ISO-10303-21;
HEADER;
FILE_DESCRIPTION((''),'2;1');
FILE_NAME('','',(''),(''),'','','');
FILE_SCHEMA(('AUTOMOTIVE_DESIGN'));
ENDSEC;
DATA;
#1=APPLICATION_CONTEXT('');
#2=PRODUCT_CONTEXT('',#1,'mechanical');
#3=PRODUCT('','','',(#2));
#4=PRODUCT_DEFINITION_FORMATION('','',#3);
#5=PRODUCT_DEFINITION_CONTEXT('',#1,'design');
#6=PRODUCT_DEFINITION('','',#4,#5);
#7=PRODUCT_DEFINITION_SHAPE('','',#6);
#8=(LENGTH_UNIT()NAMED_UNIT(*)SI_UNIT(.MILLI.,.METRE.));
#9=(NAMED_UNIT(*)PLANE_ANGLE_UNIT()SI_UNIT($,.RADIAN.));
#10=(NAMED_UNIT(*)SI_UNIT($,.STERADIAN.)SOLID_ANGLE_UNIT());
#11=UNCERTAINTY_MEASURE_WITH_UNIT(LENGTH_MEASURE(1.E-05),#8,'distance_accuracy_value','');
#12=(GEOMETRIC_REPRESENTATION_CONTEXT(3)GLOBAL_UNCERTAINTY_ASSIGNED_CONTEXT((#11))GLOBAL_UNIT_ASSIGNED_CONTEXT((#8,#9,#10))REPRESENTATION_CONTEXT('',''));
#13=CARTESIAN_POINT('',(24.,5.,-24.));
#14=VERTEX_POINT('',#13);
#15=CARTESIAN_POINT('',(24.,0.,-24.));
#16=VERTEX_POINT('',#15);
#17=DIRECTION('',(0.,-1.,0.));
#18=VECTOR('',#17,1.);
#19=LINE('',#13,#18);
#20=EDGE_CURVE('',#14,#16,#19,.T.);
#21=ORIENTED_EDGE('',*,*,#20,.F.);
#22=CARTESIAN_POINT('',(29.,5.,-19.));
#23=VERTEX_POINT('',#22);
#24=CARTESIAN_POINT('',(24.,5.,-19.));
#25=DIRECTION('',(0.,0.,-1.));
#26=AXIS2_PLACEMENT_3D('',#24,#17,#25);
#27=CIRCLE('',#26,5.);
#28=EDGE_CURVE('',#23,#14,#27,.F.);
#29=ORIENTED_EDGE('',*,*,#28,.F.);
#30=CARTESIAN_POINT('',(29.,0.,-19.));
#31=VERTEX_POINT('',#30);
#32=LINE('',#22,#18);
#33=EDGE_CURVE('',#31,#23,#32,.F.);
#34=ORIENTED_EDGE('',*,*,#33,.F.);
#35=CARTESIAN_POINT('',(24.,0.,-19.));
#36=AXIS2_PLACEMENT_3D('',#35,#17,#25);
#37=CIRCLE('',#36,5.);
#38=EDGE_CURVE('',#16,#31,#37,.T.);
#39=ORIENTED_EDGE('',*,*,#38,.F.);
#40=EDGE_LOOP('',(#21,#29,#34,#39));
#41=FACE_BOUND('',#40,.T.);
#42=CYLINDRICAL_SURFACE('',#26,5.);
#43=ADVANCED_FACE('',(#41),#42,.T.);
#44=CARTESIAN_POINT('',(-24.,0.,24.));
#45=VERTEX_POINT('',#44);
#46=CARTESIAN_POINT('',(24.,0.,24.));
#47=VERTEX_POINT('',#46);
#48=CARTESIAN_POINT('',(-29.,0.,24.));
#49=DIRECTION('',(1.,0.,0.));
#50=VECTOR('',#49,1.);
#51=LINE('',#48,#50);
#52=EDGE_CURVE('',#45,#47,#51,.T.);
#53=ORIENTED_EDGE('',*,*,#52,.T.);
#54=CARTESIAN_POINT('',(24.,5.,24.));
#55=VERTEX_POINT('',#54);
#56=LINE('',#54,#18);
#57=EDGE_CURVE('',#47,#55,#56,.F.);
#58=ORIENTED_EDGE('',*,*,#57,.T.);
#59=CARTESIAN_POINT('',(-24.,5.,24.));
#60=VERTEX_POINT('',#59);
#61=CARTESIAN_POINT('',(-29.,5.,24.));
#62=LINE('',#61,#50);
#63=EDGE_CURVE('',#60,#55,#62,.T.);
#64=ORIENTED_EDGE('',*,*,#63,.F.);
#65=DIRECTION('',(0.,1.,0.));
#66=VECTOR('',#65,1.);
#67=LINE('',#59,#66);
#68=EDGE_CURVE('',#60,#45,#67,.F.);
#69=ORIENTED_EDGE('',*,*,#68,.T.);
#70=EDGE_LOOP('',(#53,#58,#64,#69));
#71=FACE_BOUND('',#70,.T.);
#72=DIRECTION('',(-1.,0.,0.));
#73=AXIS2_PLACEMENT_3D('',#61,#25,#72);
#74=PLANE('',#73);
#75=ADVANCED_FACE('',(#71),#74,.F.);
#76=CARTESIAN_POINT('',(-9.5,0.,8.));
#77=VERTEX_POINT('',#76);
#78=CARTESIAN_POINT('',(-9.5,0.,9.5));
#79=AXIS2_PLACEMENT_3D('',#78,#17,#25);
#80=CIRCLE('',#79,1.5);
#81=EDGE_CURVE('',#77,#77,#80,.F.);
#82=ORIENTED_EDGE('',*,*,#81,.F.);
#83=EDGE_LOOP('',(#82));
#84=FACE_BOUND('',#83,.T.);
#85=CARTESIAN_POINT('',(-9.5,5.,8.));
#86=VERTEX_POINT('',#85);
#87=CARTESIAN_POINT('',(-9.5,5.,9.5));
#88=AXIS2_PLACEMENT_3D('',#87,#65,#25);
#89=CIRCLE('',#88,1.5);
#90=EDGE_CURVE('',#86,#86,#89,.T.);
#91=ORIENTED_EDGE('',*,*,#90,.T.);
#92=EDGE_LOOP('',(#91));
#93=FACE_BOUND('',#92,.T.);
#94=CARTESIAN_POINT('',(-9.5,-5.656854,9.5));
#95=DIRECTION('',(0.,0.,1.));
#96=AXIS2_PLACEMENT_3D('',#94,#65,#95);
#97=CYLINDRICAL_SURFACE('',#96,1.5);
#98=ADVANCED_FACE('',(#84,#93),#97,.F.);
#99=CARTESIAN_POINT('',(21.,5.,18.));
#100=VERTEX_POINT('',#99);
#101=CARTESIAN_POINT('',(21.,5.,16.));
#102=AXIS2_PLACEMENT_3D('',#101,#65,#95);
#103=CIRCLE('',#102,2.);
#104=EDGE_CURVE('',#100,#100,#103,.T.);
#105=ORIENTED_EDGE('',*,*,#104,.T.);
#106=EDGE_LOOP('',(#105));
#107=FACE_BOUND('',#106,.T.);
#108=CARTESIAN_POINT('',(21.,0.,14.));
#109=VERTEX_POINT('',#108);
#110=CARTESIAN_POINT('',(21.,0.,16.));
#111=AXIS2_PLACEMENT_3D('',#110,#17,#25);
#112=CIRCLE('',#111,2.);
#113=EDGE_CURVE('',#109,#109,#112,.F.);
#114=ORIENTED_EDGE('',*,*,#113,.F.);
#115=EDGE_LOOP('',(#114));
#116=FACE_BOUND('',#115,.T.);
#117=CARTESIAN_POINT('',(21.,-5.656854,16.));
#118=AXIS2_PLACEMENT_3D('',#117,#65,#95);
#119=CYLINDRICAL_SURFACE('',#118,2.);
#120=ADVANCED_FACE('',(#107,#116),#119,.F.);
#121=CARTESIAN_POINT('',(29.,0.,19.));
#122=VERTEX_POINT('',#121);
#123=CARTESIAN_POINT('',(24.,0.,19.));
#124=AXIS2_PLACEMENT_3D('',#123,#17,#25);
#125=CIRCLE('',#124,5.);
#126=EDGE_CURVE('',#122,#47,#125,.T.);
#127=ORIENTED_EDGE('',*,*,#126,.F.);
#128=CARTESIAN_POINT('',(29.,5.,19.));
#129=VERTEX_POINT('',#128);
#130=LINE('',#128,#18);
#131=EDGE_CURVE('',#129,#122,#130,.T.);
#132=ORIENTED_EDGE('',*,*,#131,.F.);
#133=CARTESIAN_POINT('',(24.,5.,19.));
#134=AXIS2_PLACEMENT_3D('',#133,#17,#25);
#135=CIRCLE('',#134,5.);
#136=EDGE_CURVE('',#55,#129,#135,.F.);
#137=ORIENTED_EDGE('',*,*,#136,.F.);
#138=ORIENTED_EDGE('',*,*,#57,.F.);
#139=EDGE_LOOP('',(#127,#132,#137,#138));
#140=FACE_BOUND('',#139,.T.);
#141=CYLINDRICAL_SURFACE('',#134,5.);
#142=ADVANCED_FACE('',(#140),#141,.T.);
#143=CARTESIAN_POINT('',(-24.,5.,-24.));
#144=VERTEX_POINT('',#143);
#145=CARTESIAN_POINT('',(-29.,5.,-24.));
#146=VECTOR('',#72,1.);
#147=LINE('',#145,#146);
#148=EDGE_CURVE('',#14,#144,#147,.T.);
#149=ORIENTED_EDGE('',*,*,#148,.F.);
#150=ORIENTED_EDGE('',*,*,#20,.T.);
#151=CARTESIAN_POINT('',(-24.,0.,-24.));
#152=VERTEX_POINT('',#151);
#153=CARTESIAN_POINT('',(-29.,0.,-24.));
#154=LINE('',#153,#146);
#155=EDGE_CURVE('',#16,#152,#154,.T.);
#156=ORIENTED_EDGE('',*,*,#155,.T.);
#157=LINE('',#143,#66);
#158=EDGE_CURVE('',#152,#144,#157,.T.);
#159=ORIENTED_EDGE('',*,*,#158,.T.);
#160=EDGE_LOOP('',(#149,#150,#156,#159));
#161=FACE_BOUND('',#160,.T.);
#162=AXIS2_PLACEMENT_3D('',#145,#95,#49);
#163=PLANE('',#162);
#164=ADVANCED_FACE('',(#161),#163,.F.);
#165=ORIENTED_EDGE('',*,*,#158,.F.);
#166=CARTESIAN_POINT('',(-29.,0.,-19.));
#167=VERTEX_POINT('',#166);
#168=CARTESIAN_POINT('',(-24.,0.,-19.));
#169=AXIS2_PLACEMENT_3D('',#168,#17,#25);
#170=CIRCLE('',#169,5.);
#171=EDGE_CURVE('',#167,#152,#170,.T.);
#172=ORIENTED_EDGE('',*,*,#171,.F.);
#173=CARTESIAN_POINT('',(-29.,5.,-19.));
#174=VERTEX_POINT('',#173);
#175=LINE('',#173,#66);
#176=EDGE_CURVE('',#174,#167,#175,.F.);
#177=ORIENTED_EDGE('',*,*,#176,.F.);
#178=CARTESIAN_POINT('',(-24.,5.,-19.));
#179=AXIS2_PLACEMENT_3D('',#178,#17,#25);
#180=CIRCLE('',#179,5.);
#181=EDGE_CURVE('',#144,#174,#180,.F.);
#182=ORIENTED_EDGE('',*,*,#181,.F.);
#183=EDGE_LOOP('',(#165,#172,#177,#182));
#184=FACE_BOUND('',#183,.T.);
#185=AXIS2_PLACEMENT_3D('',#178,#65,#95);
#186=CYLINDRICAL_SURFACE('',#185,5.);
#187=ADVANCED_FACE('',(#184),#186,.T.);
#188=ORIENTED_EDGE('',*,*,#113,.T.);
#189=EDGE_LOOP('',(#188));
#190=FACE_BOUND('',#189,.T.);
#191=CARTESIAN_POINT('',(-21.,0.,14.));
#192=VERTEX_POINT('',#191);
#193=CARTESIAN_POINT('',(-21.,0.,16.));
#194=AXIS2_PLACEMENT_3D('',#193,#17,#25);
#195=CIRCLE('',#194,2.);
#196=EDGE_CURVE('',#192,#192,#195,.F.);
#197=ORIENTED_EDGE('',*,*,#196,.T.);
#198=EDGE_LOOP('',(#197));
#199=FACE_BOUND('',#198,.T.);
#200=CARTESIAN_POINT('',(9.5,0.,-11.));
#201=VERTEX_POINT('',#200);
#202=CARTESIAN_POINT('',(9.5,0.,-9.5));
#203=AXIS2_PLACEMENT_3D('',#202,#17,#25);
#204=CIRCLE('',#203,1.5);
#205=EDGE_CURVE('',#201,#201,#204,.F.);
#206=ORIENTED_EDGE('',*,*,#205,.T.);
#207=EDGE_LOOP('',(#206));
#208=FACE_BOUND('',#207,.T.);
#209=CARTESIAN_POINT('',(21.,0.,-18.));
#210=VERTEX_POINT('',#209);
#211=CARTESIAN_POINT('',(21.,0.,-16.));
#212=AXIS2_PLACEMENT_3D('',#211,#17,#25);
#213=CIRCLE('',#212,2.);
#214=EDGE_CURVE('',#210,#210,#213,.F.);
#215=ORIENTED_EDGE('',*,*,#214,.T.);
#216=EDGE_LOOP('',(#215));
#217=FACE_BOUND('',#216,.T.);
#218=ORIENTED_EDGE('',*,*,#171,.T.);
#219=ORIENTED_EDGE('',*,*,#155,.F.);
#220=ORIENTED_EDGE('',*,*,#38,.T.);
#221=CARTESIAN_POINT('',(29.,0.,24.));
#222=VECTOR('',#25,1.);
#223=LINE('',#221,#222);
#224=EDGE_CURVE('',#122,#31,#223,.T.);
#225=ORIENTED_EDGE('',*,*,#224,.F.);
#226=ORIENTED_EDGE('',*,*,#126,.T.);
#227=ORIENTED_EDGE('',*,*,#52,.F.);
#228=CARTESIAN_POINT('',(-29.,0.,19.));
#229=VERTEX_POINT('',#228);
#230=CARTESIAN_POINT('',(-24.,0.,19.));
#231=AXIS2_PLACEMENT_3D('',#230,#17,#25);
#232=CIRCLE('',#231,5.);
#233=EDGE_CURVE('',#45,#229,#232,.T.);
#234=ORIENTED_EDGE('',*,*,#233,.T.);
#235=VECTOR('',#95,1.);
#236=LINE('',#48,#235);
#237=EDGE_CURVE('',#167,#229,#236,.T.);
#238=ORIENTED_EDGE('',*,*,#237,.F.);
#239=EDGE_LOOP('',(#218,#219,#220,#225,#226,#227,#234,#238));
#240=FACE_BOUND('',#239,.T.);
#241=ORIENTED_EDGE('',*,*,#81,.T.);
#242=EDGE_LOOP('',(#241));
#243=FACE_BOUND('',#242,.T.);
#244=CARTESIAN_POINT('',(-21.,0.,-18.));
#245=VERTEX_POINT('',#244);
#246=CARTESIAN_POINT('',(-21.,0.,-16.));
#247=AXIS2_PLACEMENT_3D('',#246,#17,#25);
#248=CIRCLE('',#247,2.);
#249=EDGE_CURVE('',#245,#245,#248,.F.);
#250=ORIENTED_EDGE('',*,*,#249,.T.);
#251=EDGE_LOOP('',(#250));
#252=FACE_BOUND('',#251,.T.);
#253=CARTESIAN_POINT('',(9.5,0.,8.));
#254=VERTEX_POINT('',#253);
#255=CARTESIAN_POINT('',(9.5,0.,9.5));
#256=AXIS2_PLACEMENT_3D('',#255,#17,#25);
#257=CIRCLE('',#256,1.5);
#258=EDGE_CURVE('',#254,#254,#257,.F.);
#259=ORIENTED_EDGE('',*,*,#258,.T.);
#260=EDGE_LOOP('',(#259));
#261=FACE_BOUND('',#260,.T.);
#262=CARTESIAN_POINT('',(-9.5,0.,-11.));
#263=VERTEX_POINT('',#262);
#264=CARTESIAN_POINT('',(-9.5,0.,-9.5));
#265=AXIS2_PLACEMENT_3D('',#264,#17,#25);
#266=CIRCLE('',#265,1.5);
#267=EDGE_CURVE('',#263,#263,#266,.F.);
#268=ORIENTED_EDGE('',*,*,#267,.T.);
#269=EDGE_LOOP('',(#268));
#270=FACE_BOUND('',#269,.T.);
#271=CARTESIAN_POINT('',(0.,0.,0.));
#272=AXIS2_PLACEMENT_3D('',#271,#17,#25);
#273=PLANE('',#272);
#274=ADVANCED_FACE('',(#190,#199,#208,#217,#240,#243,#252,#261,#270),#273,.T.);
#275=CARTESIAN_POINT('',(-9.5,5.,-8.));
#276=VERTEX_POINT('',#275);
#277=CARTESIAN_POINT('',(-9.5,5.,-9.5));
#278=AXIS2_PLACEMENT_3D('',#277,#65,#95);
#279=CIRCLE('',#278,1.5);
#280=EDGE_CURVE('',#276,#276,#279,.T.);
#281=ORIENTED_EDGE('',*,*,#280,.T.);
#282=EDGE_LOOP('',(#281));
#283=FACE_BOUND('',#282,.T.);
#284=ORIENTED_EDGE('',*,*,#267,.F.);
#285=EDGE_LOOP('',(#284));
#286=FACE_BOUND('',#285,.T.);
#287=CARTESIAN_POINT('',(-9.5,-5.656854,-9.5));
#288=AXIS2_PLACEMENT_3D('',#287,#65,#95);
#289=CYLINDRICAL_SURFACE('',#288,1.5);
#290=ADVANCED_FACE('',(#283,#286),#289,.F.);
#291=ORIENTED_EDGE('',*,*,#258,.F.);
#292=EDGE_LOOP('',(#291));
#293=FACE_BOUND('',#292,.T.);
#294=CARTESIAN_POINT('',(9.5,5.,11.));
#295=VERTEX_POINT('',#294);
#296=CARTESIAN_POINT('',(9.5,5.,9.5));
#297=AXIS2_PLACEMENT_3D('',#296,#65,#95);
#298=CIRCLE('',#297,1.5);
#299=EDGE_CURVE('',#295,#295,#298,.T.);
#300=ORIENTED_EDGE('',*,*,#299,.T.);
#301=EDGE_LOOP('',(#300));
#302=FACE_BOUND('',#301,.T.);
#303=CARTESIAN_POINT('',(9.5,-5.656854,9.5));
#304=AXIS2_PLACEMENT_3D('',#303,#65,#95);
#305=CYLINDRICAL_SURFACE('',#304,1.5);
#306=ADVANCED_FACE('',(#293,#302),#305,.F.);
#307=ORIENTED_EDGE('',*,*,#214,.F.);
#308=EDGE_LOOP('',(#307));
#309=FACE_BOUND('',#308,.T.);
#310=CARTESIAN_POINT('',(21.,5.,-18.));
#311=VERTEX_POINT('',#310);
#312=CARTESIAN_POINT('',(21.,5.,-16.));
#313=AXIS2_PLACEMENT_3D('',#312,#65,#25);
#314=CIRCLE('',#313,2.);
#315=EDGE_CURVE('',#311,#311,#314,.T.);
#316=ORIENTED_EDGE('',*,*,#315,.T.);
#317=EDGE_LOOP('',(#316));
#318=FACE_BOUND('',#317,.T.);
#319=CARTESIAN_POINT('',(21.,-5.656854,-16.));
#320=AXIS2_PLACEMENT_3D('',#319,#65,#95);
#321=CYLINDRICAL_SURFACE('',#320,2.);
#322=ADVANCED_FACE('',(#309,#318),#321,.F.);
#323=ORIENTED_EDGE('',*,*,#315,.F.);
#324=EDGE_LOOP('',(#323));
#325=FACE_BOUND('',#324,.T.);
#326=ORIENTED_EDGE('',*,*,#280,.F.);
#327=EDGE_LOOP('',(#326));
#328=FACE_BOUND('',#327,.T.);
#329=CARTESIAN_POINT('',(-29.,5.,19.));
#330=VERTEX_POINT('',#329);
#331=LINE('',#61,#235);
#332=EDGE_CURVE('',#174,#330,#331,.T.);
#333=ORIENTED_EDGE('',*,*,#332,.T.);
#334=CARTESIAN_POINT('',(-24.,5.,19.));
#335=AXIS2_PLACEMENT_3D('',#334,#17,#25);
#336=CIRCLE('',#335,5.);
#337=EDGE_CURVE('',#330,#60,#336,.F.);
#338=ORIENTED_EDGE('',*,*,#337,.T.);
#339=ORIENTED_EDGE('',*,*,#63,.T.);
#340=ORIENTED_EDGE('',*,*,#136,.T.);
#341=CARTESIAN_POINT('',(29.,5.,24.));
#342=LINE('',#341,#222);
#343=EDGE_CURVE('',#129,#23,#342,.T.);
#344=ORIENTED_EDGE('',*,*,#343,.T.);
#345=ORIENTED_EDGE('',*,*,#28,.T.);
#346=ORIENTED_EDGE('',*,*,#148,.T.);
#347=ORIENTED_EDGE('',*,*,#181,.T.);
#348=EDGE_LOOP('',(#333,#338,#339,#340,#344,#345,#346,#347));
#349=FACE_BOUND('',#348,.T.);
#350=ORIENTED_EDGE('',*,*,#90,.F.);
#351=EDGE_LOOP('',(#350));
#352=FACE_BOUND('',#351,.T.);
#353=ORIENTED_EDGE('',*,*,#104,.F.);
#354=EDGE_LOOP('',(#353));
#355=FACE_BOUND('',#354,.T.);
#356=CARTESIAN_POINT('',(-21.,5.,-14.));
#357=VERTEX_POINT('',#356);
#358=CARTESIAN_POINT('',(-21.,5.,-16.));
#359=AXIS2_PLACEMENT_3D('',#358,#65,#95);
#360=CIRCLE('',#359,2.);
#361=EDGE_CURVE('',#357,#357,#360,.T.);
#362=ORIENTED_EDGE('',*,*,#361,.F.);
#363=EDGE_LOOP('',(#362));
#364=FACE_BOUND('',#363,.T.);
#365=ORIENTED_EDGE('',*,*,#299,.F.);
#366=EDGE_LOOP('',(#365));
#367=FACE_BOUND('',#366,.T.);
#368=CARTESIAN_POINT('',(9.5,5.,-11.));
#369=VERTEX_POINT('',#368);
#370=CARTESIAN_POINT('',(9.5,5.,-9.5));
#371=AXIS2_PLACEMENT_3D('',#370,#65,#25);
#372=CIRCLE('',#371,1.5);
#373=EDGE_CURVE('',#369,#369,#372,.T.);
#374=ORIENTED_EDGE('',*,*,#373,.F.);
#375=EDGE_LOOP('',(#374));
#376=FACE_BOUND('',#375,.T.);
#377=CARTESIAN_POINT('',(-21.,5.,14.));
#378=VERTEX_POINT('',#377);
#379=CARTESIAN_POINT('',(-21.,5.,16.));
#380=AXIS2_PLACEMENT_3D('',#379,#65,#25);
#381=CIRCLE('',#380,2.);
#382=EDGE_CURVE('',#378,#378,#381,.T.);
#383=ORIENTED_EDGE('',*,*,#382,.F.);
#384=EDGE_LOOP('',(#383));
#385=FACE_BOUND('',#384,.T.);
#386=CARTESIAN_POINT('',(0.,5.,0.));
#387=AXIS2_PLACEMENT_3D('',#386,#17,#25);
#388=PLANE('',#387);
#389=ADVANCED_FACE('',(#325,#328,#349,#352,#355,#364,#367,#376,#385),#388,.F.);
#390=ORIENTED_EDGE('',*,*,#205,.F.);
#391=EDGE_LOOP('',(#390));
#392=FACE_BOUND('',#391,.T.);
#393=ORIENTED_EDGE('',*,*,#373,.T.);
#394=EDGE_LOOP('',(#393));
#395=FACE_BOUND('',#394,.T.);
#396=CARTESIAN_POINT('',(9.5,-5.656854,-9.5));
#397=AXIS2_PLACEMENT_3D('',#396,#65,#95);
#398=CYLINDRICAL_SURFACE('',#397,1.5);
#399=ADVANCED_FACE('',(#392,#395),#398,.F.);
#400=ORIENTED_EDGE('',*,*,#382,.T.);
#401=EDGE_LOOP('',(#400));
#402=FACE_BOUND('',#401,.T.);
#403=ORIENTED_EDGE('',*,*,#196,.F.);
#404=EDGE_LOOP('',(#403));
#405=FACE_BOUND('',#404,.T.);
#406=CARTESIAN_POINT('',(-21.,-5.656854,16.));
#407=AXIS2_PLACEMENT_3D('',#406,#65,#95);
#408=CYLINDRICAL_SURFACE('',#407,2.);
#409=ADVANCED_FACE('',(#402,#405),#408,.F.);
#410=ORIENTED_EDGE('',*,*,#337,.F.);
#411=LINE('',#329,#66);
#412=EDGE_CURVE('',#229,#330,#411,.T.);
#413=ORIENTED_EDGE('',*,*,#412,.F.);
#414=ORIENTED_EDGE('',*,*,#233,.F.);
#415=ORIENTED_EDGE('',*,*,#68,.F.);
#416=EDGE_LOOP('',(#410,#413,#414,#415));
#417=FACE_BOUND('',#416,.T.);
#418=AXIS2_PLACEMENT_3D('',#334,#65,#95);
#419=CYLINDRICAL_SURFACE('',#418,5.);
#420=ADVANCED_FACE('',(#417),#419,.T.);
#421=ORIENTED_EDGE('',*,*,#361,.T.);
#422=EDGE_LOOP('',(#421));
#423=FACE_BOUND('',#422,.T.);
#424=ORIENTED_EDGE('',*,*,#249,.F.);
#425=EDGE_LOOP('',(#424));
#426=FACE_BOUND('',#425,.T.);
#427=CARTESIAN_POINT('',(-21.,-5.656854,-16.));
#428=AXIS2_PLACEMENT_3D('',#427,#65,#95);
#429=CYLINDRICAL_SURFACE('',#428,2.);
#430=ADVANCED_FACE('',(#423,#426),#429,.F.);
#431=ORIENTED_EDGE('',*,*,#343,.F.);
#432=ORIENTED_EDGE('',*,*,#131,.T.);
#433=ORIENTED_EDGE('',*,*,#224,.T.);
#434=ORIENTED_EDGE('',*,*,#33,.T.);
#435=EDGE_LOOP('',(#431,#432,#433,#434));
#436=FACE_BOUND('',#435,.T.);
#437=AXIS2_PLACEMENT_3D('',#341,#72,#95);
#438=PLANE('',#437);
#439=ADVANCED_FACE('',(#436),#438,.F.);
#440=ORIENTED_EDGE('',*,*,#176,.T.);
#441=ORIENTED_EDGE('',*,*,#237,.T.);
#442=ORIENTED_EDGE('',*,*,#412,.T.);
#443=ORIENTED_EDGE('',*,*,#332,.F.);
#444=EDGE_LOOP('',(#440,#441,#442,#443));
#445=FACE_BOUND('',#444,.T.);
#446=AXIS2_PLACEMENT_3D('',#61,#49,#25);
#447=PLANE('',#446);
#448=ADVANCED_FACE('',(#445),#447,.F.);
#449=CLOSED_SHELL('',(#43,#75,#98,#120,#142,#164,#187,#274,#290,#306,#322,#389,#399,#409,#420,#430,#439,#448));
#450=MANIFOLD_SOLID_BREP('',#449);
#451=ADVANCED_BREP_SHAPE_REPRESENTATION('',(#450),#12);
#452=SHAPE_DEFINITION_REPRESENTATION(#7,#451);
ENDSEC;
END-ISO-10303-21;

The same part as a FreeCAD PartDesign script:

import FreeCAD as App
import Part
import Sketcher
Q = App.Units.Quantity


def edges_at(feature, points):
    """Names of the edges that pass closest to the given points."""
    edges = feature.Shape.Edges
    near = lambda p: min(range(len(edges)), key=lambda i: edges[i].distToShape(Part.Vertex(*p))[0])
    return sorted({f"Edge{near(p) + 1}" for p in points})


def add_polygon(sketch, points):
    """Adds a closed chain of lines whose ends are joined by coincident constraints."""
    first, n = sketch.GeometryCount, len(points)
    for a, b in zip(points, points[1:] + points[:1]):
        sketch.addGeometry(Part.LineSegment(App.Vector(*a, 0), App.Vector(*b, 0)), False)
    for i in range(n):
        sketch.addConstraint(Sketcher.Constraint("Coincident", first + i, 2, first + (i + 1) % n, 1))

doc = App.newDocument("Part")
body = doc.addObject("PartDesign::Body", "Body")

# Sketch on XZ plane
sketch1 = body.newObject("Sketcher::SketchObject", "Sketch")
sketch1.AttachmentSupport = (doc.getObject("XZ_Plane"), [""])
sketch1.MapMode = "FlatFace"
add_polygon(sketch1, [(-29, -24), (-29, 24), (29, 24), (29, -24)])  # lines 0-3
sketch1.addConstraint([
    Sketcher.Constraint("Vertical", 0),
    Sketcher.Constraint("Horizontal", 1),
    Sketcher.Constraint("Vertical", 2),
    Sketcher.Constraint("Horizontal", 3),
    Sketcher.Constraint("Symmetric", 0, 2, 2, 2, -1, 1),
    Sketcher.Constraint("DistanceX", 1, 1, 1, 2, Q("58 mm")),
    Sketcher.Constraint("DistanceY", 0, 1, 0, 2, Q("48 mm")),
])
pad1 = body.newObject("PartDesign::Pad", "Pad")
pad1.Profile = sketch1
pad1.Length = 5
pad1.Reversed = True

# Sketch on XZ plane
sketch2 = body.newObject("Sketcher::SketchObject", "Sketch001")
sketch2.AttachmentSupport = (doc.getObject("XZ_Plane"), [""])
sketch2.MapMode = "FlatFace"
sketch2.AttachmentOffset = App.Placement(App.Vector(0, 0, -5), App.Rotation())
sketch2.addGeometry([
    Part.Circle(App.Vector(21, 16, 0), App.Vector(0, 0, 1), 2),  # 0
    Part.Circle(App.Vector(-21, 16, 0), App.Vector(0, 0, 1), 2),  # 1
    Part.Circle(App.Vector(-21, -16, 0), App.Vector(0, 0, 1), 2),  # 2
    Part.Circle(App.Vector(21, -16, 0), App.Vector(0, 0, 1), 2),  # 3
    Part.Circle(App.Vector(9.5, 9.5, 0), App.Vector(0, 0, 1), 1.5),  # 4
    Part.Circle(App.Vector(-9.5, 9.5, 0), App.Vector(0, 0, 1), 1.5),  # 5
    Part.Circle(App.Vector(9.5, -9.5, 0), App.Vector(0, 0, 1), 1.5),  # 6
    Part.Circle(App.Vector(-9.5, -9.5, 0), App.Vector(0, 0, 1), 1.5),  # 7
], False)
sketch2.addConstraint([
    Sketcher.Constraint("Equal", 0, 1),
    Sketcher.Constraint("Equal", 1, 2),
    Sketcher.Constraint("Equal", 2, 3),
    Sketcher.Constraint("Equal", 4, 5),
    Sketcher.Constraint("Equal", 5, 6),
    Sketcher.Constraint("Equal", 6, 7),
    Sketcher.Constraint("Symmetric", 0, 3, 2, 3, -1, 1),
    Sketcher.Constraint("Symmetric", 1, 3, 3, 3, -1, 1),
    Sketcher.Constraint("Symmetric", 5, 3, 6, 3, -1, 1),
    Sketcher.Constraint("Symmetric", 4, 3, 7, 3, -1, 1),
    Sketcher.Constraint("Symmetric", 0, 3, 1, 3, -2),
    Sketcher.Constraint("Symmetric", 4, 3, 5, 3, -2),
    Sketcher.Constraint("Diameter", 0, Q("4 mm")),
    Sketcher.Constraint("Diameter", 4, Q("3 mm")),
    Sketcher.Constraint("DistanceX", -1, 1, 0, 3, Q("21 mm")),
    Sketcher.Constraint("DistanceY", -1, 1, 0, 3, Q("16 mm")),
    Sketcher.Constraint("DistanceX", 5, 3, 4, 3, Q("19 mm")),
    Sketcher.Constraint("DistanceY", 6, 3, 4, 3, Q("19 mm")),
])
pocket1 = body.newObject("PartDesign::Pocket", "Pocket")
pocket1.Profile = sketch2
pocket1.Length = 5
pocket1.Reversed = True
doc.recompute()

fillet = body.newObject("PartDesign::Fillet", "Fillet")
fillet.Base = (pocket1, edges_at(pocket1, [(-29, 2.5, 24)]))
fillet.Radius = 5
doc.recompute()

fillet2 = body.newObject("PartDesign::Fillet", "Fillet001")
fillet2.Base = (fillet, edges_at(fillet, [(29, 2.5, 24)]))
fillet2.Radius = 5
doc.recompute()

fillet3 = body.newObject("PartDesign::Fillet", "Fillet002")
fillet3.Base = (fillet2, edges_at(fillet2, [(29, 2.5, -24)]))
fillet3.Radius = 5
doc.recompute()

fillet4 = body.newObject("PartDesign::Fillet", "Fillet003")
fillet4.Base = (fillet3, edges_at(fillet3, [(-29, 2.5, -24)]))
fillet4.Radius = 5

doc.recompute()
